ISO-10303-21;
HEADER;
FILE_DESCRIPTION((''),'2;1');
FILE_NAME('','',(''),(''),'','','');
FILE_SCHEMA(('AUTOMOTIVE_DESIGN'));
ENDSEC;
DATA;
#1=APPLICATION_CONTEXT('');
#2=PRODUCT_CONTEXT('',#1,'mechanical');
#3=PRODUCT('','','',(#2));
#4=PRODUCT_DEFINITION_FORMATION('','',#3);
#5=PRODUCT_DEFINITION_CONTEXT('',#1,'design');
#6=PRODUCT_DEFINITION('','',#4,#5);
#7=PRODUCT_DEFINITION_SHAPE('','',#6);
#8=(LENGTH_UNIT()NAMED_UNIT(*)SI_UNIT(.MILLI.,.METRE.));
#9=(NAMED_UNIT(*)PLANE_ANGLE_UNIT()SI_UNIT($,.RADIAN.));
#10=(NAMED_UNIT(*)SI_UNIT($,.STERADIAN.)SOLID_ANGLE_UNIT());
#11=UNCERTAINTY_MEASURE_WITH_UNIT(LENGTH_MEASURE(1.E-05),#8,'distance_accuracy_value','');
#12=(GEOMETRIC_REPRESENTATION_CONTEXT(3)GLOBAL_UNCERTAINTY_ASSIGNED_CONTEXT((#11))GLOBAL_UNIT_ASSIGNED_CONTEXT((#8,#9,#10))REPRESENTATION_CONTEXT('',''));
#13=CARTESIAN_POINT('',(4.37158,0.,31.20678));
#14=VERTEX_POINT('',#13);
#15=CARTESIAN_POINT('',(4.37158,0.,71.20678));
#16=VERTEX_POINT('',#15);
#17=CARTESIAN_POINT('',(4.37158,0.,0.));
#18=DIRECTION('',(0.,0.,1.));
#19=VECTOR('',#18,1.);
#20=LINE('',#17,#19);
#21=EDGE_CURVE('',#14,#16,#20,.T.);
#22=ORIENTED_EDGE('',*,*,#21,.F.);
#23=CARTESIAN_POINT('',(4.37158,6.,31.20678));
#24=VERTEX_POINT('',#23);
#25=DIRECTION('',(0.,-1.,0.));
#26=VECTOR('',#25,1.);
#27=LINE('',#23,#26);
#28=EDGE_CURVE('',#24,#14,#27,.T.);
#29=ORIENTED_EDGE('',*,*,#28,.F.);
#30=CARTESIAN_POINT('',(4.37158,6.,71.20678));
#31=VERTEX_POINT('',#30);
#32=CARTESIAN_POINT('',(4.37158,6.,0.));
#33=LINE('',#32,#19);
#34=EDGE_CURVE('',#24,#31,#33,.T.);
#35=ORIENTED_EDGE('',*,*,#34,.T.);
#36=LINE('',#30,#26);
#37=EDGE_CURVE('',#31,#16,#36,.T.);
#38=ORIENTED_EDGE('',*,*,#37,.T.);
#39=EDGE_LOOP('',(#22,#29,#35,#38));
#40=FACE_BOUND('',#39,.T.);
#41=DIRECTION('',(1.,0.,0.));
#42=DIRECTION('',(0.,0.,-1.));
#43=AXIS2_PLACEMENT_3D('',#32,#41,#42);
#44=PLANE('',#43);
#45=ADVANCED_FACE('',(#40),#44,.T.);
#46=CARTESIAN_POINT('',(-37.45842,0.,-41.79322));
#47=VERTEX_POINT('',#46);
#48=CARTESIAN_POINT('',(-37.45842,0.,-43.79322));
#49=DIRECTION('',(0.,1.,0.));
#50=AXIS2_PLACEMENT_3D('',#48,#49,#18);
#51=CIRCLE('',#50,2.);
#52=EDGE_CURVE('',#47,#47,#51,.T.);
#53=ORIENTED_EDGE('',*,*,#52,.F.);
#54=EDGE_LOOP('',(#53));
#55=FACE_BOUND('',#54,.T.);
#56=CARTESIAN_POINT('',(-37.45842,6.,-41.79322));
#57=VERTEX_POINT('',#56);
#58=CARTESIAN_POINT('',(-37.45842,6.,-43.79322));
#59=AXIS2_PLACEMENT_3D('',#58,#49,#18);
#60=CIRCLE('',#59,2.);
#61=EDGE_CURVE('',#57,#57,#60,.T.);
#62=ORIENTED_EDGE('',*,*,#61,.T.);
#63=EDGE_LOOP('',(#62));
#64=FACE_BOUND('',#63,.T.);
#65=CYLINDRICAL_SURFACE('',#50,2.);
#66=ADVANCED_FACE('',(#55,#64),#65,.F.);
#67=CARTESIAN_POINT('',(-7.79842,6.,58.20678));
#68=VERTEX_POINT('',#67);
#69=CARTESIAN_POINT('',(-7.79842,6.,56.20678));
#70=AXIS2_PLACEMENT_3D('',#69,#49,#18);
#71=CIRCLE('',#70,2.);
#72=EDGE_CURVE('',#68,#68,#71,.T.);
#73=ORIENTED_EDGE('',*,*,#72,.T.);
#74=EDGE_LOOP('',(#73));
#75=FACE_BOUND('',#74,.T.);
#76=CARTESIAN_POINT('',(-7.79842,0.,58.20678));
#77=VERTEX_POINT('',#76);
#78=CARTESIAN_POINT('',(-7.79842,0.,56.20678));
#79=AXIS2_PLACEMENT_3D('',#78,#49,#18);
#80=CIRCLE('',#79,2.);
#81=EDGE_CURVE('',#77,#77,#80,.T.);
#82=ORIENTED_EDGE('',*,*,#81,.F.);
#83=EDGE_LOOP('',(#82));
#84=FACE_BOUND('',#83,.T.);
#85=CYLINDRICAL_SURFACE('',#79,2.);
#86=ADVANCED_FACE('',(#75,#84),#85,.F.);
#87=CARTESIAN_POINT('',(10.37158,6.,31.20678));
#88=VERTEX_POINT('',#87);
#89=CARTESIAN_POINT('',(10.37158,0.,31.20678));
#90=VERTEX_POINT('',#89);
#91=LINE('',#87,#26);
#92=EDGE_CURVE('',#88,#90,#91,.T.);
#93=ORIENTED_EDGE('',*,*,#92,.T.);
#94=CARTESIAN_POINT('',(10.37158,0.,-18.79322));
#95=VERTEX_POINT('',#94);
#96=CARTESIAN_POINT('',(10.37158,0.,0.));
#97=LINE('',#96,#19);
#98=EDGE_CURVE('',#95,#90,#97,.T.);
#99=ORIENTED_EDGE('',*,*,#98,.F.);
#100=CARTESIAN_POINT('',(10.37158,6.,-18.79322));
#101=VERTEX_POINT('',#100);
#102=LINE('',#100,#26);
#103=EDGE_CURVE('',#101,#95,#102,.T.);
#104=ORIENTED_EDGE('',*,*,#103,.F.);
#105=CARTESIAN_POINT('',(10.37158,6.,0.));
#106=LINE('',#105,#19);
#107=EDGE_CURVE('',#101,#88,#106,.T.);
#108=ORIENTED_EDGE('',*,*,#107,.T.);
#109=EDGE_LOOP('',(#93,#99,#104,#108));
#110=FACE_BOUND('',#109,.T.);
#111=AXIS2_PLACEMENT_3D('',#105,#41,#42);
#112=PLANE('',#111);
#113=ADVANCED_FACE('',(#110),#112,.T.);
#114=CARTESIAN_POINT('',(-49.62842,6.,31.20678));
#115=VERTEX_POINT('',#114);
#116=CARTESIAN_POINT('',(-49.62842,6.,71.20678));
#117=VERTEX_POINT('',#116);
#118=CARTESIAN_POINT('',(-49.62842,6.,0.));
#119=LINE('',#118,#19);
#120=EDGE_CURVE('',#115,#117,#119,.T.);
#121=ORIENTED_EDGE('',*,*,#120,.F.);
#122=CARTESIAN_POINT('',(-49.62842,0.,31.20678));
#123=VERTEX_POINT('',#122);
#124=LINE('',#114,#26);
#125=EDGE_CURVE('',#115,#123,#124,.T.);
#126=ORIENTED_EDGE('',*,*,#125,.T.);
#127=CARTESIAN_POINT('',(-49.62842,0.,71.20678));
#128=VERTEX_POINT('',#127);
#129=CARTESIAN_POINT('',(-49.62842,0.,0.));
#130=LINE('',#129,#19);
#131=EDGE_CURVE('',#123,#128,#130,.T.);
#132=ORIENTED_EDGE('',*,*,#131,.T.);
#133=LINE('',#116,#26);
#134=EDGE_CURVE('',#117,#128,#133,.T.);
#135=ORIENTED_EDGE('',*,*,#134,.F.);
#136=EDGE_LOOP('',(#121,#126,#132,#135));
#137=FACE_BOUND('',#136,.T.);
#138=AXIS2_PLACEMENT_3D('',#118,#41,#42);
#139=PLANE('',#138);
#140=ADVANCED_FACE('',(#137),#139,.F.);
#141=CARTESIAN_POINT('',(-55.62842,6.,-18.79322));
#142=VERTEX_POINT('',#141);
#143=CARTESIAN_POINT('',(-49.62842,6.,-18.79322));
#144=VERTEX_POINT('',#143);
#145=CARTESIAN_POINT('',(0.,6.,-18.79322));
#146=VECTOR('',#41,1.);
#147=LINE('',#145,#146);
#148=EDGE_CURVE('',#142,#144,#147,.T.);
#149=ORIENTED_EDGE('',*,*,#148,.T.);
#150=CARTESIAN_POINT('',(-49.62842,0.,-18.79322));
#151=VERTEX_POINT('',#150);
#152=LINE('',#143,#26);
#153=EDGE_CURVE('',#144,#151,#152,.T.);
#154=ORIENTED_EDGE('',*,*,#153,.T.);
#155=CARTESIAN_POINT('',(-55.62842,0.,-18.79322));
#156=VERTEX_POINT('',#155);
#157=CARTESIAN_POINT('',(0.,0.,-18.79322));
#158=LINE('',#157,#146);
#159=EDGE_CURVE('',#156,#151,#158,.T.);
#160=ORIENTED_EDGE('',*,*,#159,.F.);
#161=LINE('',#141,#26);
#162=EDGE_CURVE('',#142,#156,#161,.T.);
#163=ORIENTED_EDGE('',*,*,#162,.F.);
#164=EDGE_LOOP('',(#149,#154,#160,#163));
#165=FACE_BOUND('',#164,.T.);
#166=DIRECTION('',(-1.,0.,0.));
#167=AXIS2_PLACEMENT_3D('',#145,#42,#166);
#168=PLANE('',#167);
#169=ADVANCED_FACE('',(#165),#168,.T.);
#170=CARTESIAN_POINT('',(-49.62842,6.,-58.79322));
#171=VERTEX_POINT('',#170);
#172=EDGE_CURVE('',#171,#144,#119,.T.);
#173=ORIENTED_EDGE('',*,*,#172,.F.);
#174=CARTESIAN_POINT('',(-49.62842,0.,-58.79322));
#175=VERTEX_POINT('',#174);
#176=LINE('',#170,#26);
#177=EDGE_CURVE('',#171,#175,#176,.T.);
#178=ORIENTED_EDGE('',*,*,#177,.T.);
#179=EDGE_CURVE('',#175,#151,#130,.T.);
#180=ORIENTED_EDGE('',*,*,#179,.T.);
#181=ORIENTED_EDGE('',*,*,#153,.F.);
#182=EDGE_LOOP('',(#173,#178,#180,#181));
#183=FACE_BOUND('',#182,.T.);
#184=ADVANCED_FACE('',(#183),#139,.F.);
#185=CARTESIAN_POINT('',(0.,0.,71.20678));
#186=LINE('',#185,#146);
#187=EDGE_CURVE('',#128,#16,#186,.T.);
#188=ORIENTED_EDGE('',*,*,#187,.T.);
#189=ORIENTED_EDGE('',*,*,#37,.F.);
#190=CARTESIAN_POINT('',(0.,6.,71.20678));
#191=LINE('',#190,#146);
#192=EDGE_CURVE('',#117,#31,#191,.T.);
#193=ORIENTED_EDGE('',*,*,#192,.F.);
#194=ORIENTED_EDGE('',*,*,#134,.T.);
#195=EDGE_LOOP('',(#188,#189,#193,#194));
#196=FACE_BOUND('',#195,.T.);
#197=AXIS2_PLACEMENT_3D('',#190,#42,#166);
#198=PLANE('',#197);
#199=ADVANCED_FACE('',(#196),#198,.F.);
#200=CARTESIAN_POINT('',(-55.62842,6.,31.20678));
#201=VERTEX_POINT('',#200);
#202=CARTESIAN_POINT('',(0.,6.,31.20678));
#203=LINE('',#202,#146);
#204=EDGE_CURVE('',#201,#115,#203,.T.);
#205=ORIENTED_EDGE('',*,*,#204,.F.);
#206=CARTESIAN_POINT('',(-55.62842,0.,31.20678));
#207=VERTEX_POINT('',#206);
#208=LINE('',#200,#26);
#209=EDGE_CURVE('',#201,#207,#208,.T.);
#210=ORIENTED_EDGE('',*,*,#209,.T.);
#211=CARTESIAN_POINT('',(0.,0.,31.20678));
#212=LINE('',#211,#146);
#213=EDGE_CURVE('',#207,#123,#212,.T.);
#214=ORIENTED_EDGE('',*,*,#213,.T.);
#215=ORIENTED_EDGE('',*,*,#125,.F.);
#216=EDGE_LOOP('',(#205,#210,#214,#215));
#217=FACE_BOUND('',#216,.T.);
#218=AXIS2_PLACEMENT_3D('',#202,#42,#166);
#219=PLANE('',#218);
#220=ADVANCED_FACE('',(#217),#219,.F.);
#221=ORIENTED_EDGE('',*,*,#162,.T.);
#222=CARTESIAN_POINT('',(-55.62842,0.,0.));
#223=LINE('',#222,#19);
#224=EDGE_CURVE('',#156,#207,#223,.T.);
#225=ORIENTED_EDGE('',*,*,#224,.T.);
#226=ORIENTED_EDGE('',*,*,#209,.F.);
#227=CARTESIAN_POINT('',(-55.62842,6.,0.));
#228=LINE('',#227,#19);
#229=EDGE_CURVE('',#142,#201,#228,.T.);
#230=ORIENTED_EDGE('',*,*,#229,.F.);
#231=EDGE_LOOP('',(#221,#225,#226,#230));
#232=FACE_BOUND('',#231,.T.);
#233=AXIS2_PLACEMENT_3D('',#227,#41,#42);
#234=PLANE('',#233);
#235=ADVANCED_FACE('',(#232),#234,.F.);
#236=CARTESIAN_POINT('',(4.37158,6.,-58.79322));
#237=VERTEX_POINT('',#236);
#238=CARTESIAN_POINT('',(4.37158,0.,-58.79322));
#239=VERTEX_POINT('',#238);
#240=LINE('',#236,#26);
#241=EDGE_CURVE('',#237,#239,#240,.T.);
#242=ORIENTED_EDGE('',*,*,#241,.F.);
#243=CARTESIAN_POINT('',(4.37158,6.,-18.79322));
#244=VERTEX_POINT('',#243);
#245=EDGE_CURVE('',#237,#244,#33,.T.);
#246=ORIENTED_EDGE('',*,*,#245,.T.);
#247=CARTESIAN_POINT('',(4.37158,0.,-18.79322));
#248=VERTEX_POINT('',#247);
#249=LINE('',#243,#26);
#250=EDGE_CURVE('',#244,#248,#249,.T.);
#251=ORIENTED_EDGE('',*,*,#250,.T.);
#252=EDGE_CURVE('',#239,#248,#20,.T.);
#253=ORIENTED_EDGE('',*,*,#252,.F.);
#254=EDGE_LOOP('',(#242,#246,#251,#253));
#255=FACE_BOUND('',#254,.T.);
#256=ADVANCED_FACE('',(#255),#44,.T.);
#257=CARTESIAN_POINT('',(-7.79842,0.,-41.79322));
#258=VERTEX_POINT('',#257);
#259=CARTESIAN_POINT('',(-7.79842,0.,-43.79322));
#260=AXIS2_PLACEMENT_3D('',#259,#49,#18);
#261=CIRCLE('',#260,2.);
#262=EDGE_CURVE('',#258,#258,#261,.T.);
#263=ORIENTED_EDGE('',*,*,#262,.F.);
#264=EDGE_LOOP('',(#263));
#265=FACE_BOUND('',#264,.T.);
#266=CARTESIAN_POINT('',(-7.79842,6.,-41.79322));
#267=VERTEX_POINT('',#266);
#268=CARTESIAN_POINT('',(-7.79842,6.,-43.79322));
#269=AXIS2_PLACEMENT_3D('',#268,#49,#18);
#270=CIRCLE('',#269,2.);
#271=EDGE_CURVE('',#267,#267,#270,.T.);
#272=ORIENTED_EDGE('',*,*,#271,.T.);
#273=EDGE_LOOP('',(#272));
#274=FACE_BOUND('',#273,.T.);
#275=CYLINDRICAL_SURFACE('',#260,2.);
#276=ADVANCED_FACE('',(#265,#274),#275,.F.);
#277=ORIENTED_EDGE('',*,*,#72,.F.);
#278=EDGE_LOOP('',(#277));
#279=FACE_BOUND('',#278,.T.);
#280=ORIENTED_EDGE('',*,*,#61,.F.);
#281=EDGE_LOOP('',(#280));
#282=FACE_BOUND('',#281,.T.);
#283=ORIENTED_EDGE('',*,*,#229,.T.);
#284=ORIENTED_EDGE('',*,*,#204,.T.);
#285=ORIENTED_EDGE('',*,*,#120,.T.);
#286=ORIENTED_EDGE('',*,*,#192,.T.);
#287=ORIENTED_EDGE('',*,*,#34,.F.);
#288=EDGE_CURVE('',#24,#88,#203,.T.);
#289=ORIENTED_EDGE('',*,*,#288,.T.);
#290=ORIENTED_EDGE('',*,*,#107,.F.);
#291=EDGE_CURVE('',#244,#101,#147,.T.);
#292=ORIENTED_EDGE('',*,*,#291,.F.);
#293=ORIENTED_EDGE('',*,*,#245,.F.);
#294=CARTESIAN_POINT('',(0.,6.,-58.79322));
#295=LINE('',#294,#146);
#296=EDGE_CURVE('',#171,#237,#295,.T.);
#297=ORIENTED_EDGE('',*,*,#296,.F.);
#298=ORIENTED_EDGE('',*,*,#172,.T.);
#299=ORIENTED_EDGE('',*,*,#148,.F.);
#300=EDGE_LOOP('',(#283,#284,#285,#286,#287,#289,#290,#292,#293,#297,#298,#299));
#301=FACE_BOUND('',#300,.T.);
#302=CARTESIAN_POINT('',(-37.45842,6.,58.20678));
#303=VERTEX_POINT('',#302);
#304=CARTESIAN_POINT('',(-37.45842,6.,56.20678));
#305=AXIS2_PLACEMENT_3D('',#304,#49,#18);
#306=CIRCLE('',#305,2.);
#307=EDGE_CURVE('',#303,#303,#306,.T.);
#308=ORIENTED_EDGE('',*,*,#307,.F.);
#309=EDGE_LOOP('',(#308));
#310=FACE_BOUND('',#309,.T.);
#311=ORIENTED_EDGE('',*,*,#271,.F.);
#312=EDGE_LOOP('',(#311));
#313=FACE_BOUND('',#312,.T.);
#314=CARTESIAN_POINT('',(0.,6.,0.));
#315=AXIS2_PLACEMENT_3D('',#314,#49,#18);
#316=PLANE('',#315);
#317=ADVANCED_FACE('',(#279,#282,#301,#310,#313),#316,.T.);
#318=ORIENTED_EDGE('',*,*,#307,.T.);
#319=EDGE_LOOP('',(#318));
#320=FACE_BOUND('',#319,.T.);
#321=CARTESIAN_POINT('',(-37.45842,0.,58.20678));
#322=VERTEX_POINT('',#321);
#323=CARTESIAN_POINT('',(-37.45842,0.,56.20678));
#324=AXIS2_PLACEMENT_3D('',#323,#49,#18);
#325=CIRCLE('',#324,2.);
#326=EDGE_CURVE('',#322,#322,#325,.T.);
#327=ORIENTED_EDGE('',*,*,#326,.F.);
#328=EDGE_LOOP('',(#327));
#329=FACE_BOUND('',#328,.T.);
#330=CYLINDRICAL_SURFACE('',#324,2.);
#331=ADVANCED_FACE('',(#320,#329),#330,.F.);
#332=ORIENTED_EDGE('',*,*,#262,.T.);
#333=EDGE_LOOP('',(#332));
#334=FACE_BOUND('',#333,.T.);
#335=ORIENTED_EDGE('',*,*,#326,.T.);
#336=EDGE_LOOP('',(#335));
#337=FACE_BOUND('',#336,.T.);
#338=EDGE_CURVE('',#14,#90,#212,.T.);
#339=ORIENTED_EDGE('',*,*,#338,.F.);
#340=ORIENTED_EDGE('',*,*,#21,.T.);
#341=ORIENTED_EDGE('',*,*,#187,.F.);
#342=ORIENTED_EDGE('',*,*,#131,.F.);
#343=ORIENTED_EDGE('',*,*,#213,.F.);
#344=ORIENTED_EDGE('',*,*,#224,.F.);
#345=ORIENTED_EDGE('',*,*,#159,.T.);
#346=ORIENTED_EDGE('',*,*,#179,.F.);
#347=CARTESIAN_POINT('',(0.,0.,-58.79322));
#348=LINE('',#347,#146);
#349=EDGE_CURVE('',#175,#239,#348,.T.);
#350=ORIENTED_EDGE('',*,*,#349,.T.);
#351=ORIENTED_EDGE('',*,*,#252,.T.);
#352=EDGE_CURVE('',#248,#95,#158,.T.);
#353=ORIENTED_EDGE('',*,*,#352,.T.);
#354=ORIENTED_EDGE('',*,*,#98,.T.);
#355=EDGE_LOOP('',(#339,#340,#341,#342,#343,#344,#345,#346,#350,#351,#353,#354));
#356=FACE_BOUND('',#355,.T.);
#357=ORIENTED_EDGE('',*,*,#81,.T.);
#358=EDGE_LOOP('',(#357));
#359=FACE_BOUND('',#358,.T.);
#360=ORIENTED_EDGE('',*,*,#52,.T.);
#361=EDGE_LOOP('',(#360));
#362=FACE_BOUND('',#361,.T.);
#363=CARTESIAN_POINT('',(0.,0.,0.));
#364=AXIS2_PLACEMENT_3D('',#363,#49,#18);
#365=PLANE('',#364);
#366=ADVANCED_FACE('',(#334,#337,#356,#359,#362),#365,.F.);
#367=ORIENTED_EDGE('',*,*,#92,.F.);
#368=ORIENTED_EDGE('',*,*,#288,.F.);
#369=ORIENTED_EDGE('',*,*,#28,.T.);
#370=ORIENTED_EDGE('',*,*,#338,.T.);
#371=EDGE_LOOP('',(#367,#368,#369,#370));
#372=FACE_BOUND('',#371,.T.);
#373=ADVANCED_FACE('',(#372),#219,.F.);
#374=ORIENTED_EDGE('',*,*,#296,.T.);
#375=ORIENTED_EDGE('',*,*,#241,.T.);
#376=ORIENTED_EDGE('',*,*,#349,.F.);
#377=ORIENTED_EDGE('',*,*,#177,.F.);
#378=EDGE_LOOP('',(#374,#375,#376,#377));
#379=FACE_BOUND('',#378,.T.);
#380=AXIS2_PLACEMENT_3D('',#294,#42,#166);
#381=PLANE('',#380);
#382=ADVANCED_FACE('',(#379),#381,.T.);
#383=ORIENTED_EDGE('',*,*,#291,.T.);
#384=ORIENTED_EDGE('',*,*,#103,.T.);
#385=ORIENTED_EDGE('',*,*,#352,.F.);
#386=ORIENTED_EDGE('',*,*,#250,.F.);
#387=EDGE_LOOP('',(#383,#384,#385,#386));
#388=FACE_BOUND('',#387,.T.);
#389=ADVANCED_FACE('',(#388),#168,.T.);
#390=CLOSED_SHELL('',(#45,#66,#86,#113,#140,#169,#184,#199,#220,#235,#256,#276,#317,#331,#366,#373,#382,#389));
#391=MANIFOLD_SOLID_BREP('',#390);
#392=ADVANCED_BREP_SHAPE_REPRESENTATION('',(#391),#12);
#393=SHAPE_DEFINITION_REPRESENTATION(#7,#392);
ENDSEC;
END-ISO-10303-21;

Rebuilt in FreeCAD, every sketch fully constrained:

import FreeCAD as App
import Part
import Sketcher


def add_polygon(sketch, points):
    """Adds a closed chain of lines whose ends are joined by coincident constraints."""
    first, n = sketch.GeometryCount, len(points)
    for a, b in zip(points, points[1:] + points[:1]):
        sketch.addGeometry(Part.LineSegment(App.Vector(*a, 0), App.Vector(*b, 0)), False)
    for i in range(n):
        sketch.addConstraint(Sketcher.Constraint("Coincident", first + i, 2, first + (i + 1) % n, 1))

doc = App.newDocument("Part")
params = doc.addObject("Spreadsheet::Sheet", "Params")
for row, (alias, value) in enumerate([
    ("sketch1_width", "54 mm"),
    ("sketch1_width2", "6 mm"),
    ("sketch1_height", "40 mm"),
    ("sketch1_height2", "50 mm"),
    ("pad1_length", "6 mm"),
    ("sketch2_diameter", "4 mm"),
], start=1):
    params.set(f"A{row}", alias)
    params.set(f"B{row}", "=" + value)
    params.setAlias(f"B{row}", alias)

body = doc.addObject("PartDesign::Body", "Body")

sketch1 = body.newObject("Sketcher::SketchObject", "Sketch")
sketch1.AttachmentSupport = (doc.getObject("XZ_Plane"), [""])
sketch1.MapMode = "FlatFace"
add_polygon(sketch1, [(4, -19), (4, -59), (-50, -59), (-50, -19), (-56, -19), (-56, 31), (-50, 31), (-50, 71), (4, 71), (4, 31), (10, 31), (10, -19)])
sketch1.addConstraint([
    Sketcher.Constraint("Vertical", 0),
    Sketcher.Constraint("Horizontal", 1),
    Sketcher.Constraint("Vertical", 2),
    Sketcher.Constraint("Horizontal", 3),
    Sketcher.Constraint("Vertical", 4),
    Sketcher.Constraint("Horizontal", 5),
    Sketcher.Constraint("Vertical", 6),
    Sketcher.Constraint("Horizontal", 7),
    Sketcher.Constraint("Vertical", 8),
    Sketcher.Constraint("Horizontal", 9),
    Sketcher.Constraint("Vertical", 10),
    Sketcher.Constraint("Horizontal", 11),
    Sketcher.Constraint("Horizontal", 5, 2, 8, 2),
    Sketcher.Constraint("Horizontal", 3, 2, 10, 2),
    Sketcher.Constraint("Vertical", 2, 2, 5, 2),
    Sketcher.Constraint("Vertical", 0, 2, 7, 2),
    Sketcher.Constraint("Equal", 5, 9),
    Sketcher.Constraint("Equal", 2, 6),
    Sketcher.Constraint("DistanceX", 1, 2, 1, 1, 54.0),
    Sketcher.Constraint("DistanceX", 3, 2, 3, 1, 6.0),
    Sketcher.Constraint("DistanceY", 0, 2, 0, 1, 40.0),
    Sketcher.Constraint("DistanceY", 4, 1, 4, 2, 50.0),
    Sketcher.Constraint("DistanceX", -1, 1, 0, 2, 4.37158),
    Sketcher.Constraint("DistanceY", 0, 2, -1, 1, 58.79322),
])
sketch1.setExpression("Constraints[30]", "Params.sketch1_width")
sketch1.setExpression("Constraints[31]", "Params.sketch1_width2")
sketch1.setExpression("Constraints[32]", "Params.sketch1_height")
sketch1.setExpression("Constraints[33]", "Params.sketch1_height2")
pad1 = body.newObject("PartDesign::Pad", "Pad")
pad1.Profile = sketch1
pad1.setExpression("Length", "Params.pad1_length")
pad1.Reversed = True

sketch2 = body.newObject("Sketcher::SketchObject", "Sketch001")
sketch2.AttachmentSupport = (doc.getObject("XZ_Plane"), [""])
sketch2.MapMode = "FlatFace"
sketch2.AttachmentOffset = App.Placement(App.Vector(0, 0, -6), App.Rotation())
sketch2.addGeometry([
    Part.Circle(App.Vector(-7.8, 56.2, 0), App.Vector(0, 0, 1), 2),
    Part.Circle(App.Vector(-7.8, -43.8, 0), App.Vector(0, 0, 1), 2),
    Part.Circle(App.Vector(-37.5, -43.8, 0), App.Vector(0, 0, 1), 2),
    Part.Circle(App.Vector(-37.5, 56.2, 0), App.Vector(0, 0, 1), 2),
], False)
sketch2.addConstraint([
    Sketcher.Constraint("Equal", 0, 1),
    Sketcher.Constraint("Equal", 1, 2),
    Sketcher.Constraint("Equal", 2, 3),
    Sketcher.Constraint("Horizontal", 1, 3, 2, 3),
    Sketcher.Constraint("Horizontal", 0, 3, 3, 3),
    Sketcher.Constraint("Vertical", 0, 3, 1, 3),
    Sketcher.Constraint("Vertical", 2, 3, 3, 3),
    Sketcher.Constraint("Diameter", 0, 4.0),
    Sketcher.Constraint("DistanceY", 1, 3, 0, 3, 100.0),
    Sketcher.Constraint("DistanceX", 2, 3, 1, 3, 29.66),
    Sketcher.Constraint("DistanceX", 0, 3, -1, 1, 7.79842),
    Sketcher.Constraint("DistanceY", -1, 1, 0, 3, 56.20678),
])
sketch2.setExpression("Constraints[7]", "Params.sketch2_diameter")
pocket1 = body.newObject("PartDesign::Pocket", "Pocket")
pocket1.Profile = sketch2
pocket1.Type = "ThroughAll"
pocket1.Reversed = True

doc.recompute()
